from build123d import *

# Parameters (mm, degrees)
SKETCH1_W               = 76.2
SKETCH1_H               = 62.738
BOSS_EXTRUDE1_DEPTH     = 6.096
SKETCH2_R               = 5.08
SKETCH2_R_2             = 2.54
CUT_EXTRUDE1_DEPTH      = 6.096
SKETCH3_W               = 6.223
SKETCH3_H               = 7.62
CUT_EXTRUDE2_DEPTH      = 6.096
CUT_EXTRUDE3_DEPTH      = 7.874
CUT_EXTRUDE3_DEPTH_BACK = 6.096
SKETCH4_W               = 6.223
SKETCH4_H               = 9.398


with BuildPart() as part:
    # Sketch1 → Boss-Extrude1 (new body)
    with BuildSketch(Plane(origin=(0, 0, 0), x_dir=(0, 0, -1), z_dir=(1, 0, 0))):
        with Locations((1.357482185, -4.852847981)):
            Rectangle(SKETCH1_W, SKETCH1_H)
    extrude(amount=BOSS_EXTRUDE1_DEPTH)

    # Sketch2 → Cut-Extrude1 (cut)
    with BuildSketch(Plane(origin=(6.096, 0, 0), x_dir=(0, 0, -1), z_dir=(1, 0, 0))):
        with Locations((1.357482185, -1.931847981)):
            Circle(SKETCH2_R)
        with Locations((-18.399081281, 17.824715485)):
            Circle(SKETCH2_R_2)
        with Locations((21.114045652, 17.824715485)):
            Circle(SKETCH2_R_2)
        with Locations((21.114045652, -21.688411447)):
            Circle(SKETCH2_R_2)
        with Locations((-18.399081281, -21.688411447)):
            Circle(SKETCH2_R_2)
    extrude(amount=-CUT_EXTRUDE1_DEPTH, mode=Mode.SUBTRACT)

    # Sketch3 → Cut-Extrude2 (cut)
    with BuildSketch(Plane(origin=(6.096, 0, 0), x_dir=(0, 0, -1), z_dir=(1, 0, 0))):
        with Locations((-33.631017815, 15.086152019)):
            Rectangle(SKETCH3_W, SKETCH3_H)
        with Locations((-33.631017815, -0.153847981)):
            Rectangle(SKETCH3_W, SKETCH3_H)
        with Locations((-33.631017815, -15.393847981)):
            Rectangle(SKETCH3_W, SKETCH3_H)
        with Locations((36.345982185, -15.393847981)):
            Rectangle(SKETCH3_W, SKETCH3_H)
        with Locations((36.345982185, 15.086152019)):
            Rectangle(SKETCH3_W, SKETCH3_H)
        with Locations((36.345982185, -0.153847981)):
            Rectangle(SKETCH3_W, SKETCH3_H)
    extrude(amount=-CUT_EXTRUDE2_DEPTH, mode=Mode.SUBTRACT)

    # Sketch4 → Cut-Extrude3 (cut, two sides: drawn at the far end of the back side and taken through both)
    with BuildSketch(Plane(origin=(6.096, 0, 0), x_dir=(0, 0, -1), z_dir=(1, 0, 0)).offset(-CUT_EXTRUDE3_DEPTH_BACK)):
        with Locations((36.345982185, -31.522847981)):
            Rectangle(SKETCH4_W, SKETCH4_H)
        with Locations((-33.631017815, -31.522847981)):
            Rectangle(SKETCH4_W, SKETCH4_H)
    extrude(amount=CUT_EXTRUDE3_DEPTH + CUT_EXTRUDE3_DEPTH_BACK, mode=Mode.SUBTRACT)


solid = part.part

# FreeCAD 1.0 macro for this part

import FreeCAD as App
import Part
import Sketcher

V = App.Vector
Q = App.Units.Quantity


def add_polygon(sketch, points):
    """Adds a closed chain of lines whose ends are joined by coincident constraints."""
    first, n = sketch.GeometryCount, len(points)
    for a, b in zip(points, points[1:] + points[:1]):
        sketch.addGeometry(Part.LineSegment(App.Vector(*a, 0), App.Vector(*b, 0)), False)
    for i in range(n):
        sketch.addConstraint(Sketcher.Constraint("Coincident", first + i, 2, first + (i + 1) % n, 1))

doc = App.newDocument("Part")
params = doc.addObject("Spreadsheet::Sheet", "Params")
for row, (alias, value) in enumerate([
    ("sketch1_height", "3 in"),
    ("sketch1_width", "2.47 in"),
    ("pad1_length", "0.24 in"),
    ("sketch2_diameter", "0.4 in"),
    ("sketch2_diameter2", "0.2 in"),
    ("pocket1_length", "0.24 in"),
    ("sketch3_width", "0.3 in"),
    ("sketch3_height", "0.245 in"),
    ("pocket2_length", "0.24 in"),
    ("sketch4_width", "0.37 in"),
    ("sketch4_height", "0.245 in"),
], start=1):
    params.set(f"A{row}", alias)
    params.set(f"B{row}", "=" + value)
    params.setAlias(f"B{row}", alias)

body = doc.addObject("PartDesign::Body", "Body")

# Sketch on YZ plane
sketch1 = body.newObject("Sketcher::SketchObject", "Sketch")
sketch1.AttachmentSupport = (doc.getObject("YZ_Plane"), [""])
sketch1.MapMode = "FlatFace"
add_polygon(sketch1, [(26.516152, 36.742518), (-36.221848, 36.742518), (-36.221848, -39.457482), (26.516152, -39.457482)])  # lines 0-3
sketch1.addConstraint(Sketcher.Constraint("Horizontal", 0))
sketch1.addConstraint(Sketcher.Constraint("Vertical", 1))
sketch1.addConstraint(Sketcher.Constraint("Horizontal", 2))
sketch1.addConstraint(Sketcher.Constraint("Vertical", 3))
sketch1.addConstraint(Sketcher.Constraint("DistanceY", 1, 2, 1, 1, Q("3 in")))
sketch1.addConstraint(Sketcher.Constraint("DistanceX", 0, 2, 0, 1, Q("2.47 in")))
sketch1.addConstraint(Sketcher.Constraint("DistanceX", 0, 2, -1, 1, Q("36.221848 mm")))
sketch1.addConstraint(Sketcher.Constraint("DistanceY", -1, 1, 0, 2, Q("36.742518 mm")))
sketch1.setExpression("Constraints[8]", "Params.sketch1_height")
sketch1.setExpression("Constraints[9]", "Params.sketch1_width")
pad1 = body.newObject("PartDesign::Pad", "Pad")
pad1.Profile = sketch1
pad1.setExpression("Length", "Params.pad1_length")

# Sketch on YZ plane
sketch2 = body.newObject("Sketcher::SketchObject", "Sketch001")
sketch2.AttachmentSupport = (doc.getObject("YZ_Plane"), [""])
sketch2.MapMode = "FlatFace"
sketch2.AttachmentOffset = App.Placement(V(0, 0, 0.24 * 25.4), App.Rotation())
sketch2.addGeometry(Part.Circle(V(-1.931848, -1.357482, 0), V(0, 0, 1), 5.08), False)
sketch2.addGeometry(Part.Circle(V(17.824715, 18.399081, 0), V(0, 0, 1), 2.54), False)
sketch2.addGeometry(Part.Circle(V(17.824715, -21.114046, 0), V(0, 0, 1), 2.54), False)
sketch2.addGeometry(Part.Circle(V(-21.688411, -21.114046, 0), V(0, 0, 1), 2.54), False)
sketch2.addGeometry(Part.Circle(V(-21.688411, 18.399081, 0), V(0, 0, 1), 2.54), False)
sketch2.addConstraint(Sketcher.Constraint("Equal", 1, 2))
sketch2.addConstraint(Sketcher.Constraint("Equal", 2, 3))
sketch2.addConstraint(Sketcher.Constraint("Equal", 3, 4))
sketch2.addConstraint(Sketcher.Constraint("Horizontal", 2, 3, 3, 3))
sketch2.addConstraint(Sketcher.Constraint("Horizontal", 1, 3, 4, 3))
sketch2.addConstraint(Sketcher.Constraint("Vertical", 1, 3, 2, 3))
sketch2.addConstraint(Sketcher.Constraint("Vertical", 3, 3, 4, 3))
sketch2.addConstraint(Sketcher.Constraint("Diameter", 0, Q("0.4 in")))
sketch2.addConstraint(Sketcher.Constraint("Diameter", 1, Q("0.2 in")))
sketch2.addConstraint(Sketcher.Constraint("DistanceY", -1, 1, 1, 3, Q("18.399081 mm")))
sketch2.addConstraint(Sketcher.Constraint("DistanceX", 3, 3, -1, 1, Q("21.688411 mm")))
sketch2.addConstraint(Sketcher.Constraint("DistanceX", 0, 3, -1, 1, Q("1.931848 mm")))
sketch2.addConstraint(Sketcher.Constraint("DistanceY", 0, 3, -1, 1, Q("1.357482 mm")))
sketch2.addConstraint(Sketcher.Constraint("DistanceX", -1, 1, 1, 3, Q("17.824715 mm")))
sketch2.addConstraint(Sketcher.Constraint("DistanceY", 2, 3, -1, 1, Q("21.114046 mm")))
sketch2.setExpression("Constraints[7]", "Params.sketch2_diameter")
sketch2.setExpression("Constraints[8]", "Params.sketch2_diameter2")
pocket1 = body.newObject("PartDesign::Pocket", "Pocket")
pocket1.Profile = sketch2
pocket1.setExpression("Length", "Params.pocket1_length")

# Sketch on YZ plane
sketch3 = body.newObject("Sketcher::SketchObject", "Sketch002")
sketch3.AttachmentSupport = (doc.getObject("YZ_Plane"), [""])
sketch3.MapMode = "FlatFace"
sketch3.AttachmentOffset = App.Placement(V(0, 0, 0.24 * 25.4), App.Rotation())
add_polygon(sketch3, [(18.896152, 36.742518), (11.276152, 36.742518), (11.276152, 30.519518), (18.896152, 30.519518)])  # lines 0-3
add_polygon(sketch3, [(3.656152, 36.742518), (-3.963848, 36.742518), (-3.963848, 30.519518), (3.656152, 30.519518)])  # lines 4-7
add_polygon(sketch3, [(-11.583848, 36.742518), (-19.203848, 36.742518), (-19.203848, 30.519518), (-11.583848, 30.519518)])  # lines 8-11
add_polygon(sketch3, [(-11.583848, -33.234482), (-19.203848, -33.234482), (-19.203848, -39.457482), (-11.583848, -39.457482)])  # lines 12-15
add_polygon(sketch3, [(18.896152, -33.234482), (11.276152, -33.234482), (11.276152, -39.457482), (18.896152, -39.457482)])  # lines 16-19
add_polygon(sketch3, [(3.656152, -33.234482), (-3.963848, -33.234482), (-3.963848, -39.457482), (3.656152, -39.457482)])  # lines 20-23
sketch3.addConstraint(Sketcher.Constraint("Horizontal", 0))
sketch3.addConstraint(Sketcher.Constraint("Vertical", 1))
sketch3.addConstraint(Sketcher.Constraint("Horizontal", 2))
sketch3.addConstraint(Sketcher.Constraint("Vertical", 3))
sketch3.addConstraint(Sketcher.Constraint("Horizontal", 4))
sketch3.addConstraint(Sketcher.Constraint("Vertical", 5))
sketch3.addConstraint(Sketcher.Constraint("Horizontal", 6))
sketch3.addConstraint(Sketcher.Constraint("Vertical", 7))
sketch3.addConstraint(Sketcher.Constraint("Horizontal", 8))
sketch3.addConstraint(Sketcher.Constraint("Vertical", 9))
sketch3.addConstraint(Sketcher.Constraint("Horizontal", 10))
sketch3.addConstraint(Sketcher.Constraint("Vertical", 11))
sketch3.addConstraint(Sketcher.Constraint("Horizontal", 12))
sketch3.addConstraint(Sketcher.Constraint("Vertical", 13))
sketch3.addConstraint(Sketcher.Constraint("Horizontal", 14))
sketch3.addConstraint(Sketcher.Constraint("Vertical", 15))
sketch3.addConstraint(Sketcher.Constraint("Horizontal", 16))
sketch3.addConstraint(Sketcher.Constraint("Vertical", 17))
sketch3.addConstraint(Sketcher.Constraint("Horizontal", 18))
sketch3.addConstraint(Sketcher.Constraint("Vertical", 19))
sketch3.addConstraint(Sketcher.Constraint("Horizontal", 20))
sketch3.addConstraint(Sketcher.Constraint("Vertical", 21))
sketch3.addConstraint(Sketcher.Constraint("Horizontal", 22))
sketch3.addConstraint(Sketcher.Constraint("Vertical", 23))
sketch3.addConstraint(Sketcher.Constraint("Horizontal", 3, 2, 4, 2))
sketch3.addConstraint(Sketcher.Constraint("Horizontal", 2, 2, 5, 2))
sketch3.addConstraint(Sketcher.Constraint("Horizontal", 7, 2, 8, 2))
sketch3.addConstraint(Sketcher.Constraint("Horizontal", 6, 2, 9, 2))
sketch3.addConstraint(Sketcher.Constraint("Horizontal", 15, 2, 16, 2))
sketch3.addConstraint(Sketcher.Constraint("Horizontal", 14, 2, 17, 2))
sketch3.addConstraint(Sketcher.Constraint("Horizontal", 19, 2, 20, 2))
sketch3.addConstraint(Sketcher.Constraint("Horizontal", 18, 2, 21, 2))
sketch3.addConstraint(Sketcher.Constraint("Vertical", 9, 2, 12, 2))
sketch3.addConstraint(Sketcher.Constraint("Vertical", 11, 2, 14, 2))
sketch3.addConstraint(Sketcher.Constraint("Vertical", 1, 2, 16, 2))
sketch3.addConstraint(Sketcher.Constraint("Vertical", 3, 2, 18, 2))
sketch3.addConstraint(Sketcher.Constraint("Vertical", 5, 2, 20, 2))
sketch3.addConstraint(Sketcher.Constraint("Vertical", 7, 2, 22, 2))
sketch3.addConstraint(Sketcher.Constraint("Equal", 2, 4))
sketch3.addConstraint(Sketcher.Constraint("Equal", 6, 8))
sketch3.addConstraint(Sketcher.Constraint("Equal", 11, 13))
sketch3.addConstraint(Sketcher.Constraint("DistanceX", 0, 2, 0, 1, Q("0.3 in")))
sketch3.addConstraint(Sketcher.Constraint("DistanceX", 4, 2, 0, 2, Q("0.6 in")))
sketch3.addConstraint(Sketcher.Constraint("DistanceX", 8, 2, 4, 2, Q("0.6 in")))
sketch3.addConstraint(Sketcher.Constraint("DistanceY", 1, 2, 1, 1, Q("0.245 in")))
sketch3.addConstraint(Sketcher.Constraint("DistanceY", 12, 2, 9, 2, Q("2.51 in")))
sketch3.addConstraint(Sketcher.Constraint("DistanceX", -1, 1, 0, 2, Q("11.276152 mm")))
sketch3.addConstraint(Sketcher.Constraint("DistanceY", -1, 1, 0, 2, Q("36.742518 mm")))
sketch3.setExpression("Constraints[65]", "Params.sketch3_width")
sketch3.setExpression("Constraints[68]", "Params.sketch3_height")
pocket2 = body.newObject("PartDesign::Pocket", "Pocket001")
pocket2.Profile = sketch3
pocket2.setExpression("Length", "Params.pocket2_length")

# Sketch on YZ plane
sketch4 = body.newObject("Sketcher::SketchObject", "Sketch003")
sketch4.AttachmentSupport = (doc.getObject("YZ_Plane"), [""])
sketch4.MapMode = "FlatFace"
sketch4.AttachmentOffset = App.Placement(V(0, 0, 0.24 * 25.4), App.Rotation())
add_polygon(sketch4, [(-26.823848, -33.234482), (-36.221848, -33.234482), (-36.221848, -39.457482), (-26.823848, -39.457482)])  # lines 0-3
add_polygon(sketch4, [(-26.823848, 36.742518), (-36.221848, 36.742518), (-36.221848, 30.519518), (-26.823848, 30.519518)])  # lines 4-7
sketch4.addConstraint(Sketcher.Constraint("Horizontal", 0))
sketch4.addConstraint(Sketcher.Constraint("Vertical", 1))
sketch4.addConstraint(Sketcher.Constraint("Horizontal", 2))
sketch4.addConstraint(Sketcher.Constraint("Vertical", 3))
sketch4.addConstraint(Sketcher.Constraint("Horizontal", 4))
sketch4.addConstraint(Sketcher.Constraint("Vertical", 5))
sketch4.addConstraint(Sketcher.Constraint("Horizontal", 6))
sketch4.addConstraint(Sketcher.Constraint("Vertical", 7))
sketch4.addConstraint(Sketcher.Constraint("Vertical", 1, 2, 4, 2))
sketch4.addConstraint(Sketcher.Constraint("Vertical", 3, 2, 6, 2))
sketch4.addConstraint(Sketcher.Constraint("Equal", 3, 5))
sketch4.addConstraint(Sketcher.Constraint("DistanceY", 1, 2, 4, 2, Q("3 in")))
sketch4.addConstraint(Sketcher.Constraint("DistanceX", 0, 2, 0, 1, Q("0.37 in")))
sketch4.addConstraint(Sketcher.Constraint("DistanceY", 1, 2, 1, 1, Q("0.245 in")))
sketch4.addConstraint(Sketcher.Constraint("DistanceX", 0, 2, -1, 1, Q("36.221848 mm")))
sketch4.addConstraint(Sketcher.Constraint("DistanceY", 0, 2, -1, 1, Q("33.234482 mm")))
sketch4.setExpression("Constraints[20]", "Params.sketch4_width")
sketch4.setExpression("Constraints[21]", "Params.sketch4_height")
pocket3 = body.newObject("PartDesign::Pocket", "Pocket002")
pocket3.Profile = sketch4
pocket3.Type = "ThroughAll"
pocket3.Midplane = True

doc.recompute()
